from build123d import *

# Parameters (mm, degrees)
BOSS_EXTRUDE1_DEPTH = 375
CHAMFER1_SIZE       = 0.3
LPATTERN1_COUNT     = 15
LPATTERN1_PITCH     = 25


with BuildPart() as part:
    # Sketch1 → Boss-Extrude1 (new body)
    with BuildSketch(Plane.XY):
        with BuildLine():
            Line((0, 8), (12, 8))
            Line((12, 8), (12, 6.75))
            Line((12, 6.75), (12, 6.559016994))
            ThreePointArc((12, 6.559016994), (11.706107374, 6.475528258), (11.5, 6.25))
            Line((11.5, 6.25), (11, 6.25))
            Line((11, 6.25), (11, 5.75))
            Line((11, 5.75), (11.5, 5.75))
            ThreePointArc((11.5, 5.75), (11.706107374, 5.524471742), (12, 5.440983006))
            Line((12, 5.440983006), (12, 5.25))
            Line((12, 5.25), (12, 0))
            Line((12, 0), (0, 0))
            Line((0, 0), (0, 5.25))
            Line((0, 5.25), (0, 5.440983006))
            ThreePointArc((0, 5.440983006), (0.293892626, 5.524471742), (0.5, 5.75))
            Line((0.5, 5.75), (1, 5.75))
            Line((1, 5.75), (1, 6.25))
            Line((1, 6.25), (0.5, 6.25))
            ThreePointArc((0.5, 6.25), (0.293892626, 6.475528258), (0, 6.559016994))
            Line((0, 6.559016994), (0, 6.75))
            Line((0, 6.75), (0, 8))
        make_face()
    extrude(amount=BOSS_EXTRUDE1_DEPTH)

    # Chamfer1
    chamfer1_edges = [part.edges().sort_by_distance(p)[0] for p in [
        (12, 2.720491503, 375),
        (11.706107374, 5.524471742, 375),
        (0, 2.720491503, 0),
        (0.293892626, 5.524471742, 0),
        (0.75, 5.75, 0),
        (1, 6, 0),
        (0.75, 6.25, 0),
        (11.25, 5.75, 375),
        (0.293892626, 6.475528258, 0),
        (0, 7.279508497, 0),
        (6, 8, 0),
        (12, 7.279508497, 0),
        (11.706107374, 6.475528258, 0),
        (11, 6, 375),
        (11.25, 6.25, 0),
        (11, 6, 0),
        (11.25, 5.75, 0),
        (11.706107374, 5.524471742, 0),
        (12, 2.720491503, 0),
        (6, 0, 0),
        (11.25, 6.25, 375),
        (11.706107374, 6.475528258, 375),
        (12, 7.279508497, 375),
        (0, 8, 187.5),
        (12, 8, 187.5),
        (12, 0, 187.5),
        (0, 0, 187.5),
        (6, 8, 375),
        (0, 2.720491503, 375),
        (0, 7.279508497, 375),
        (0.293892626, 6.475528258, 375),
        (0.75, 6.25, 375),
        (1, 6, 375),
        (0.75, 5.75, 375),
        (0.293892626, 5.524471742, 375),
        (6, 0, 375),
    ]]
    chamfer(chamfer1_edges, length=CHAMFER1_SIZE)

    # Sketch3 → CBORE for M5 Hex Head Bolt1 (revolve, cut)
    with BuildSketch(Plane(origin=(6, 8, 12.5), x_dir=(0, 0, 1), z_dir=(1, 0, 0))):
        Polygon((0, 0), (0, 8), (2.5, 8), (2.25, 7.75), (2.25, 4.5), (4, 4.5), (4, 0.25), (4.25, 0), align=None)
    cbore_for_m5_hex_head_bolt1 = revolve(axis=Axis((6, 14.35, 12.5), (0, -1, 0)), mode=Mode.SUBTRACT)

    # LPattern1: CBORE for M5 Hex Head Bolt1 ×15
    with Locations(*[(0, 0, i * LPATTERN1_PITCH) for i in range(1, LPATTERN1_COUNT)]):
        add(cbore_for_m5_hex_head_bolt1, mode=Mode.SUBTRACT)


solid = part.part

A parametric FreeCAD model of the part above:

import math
import FreeCAD as App
import Part
import Sketcher

V = App.Vector
Q = App.Units.Quantity


def edges_at(feature, points):
    """Names of the edges that pass closest to the given points."""
    edges = feature.Shape.Edges
    near = lambda p: min(range(len(edges)), key=lambda i: edges[i].distToShape(Part.Vertex(*p))[0])
    return sorted({f"Edge{near(p) + 1}" for p in points})


def add_polygon(sketch, points):
    """Adds a closed chain of lines whose ends are joined by coincident constraints."""
    first, n = sketch.GeometryCount, len(points)
    for a, b in zip(points, points[1:] + points[:1]):
        sketch.addGeometry(Part.LineSegment(App.Vector(*a, 0), App.Vector(*b, 0)), False)
    for i in range(n):
        sketch.addConstraint(Sketcher.Constraint("Coincident", first + i, 2, first + (i + 1) % n, 1))

doc = App.newDocument("Part")
params = doc.addObject("Spreadsheet::Sheet", "Params")
for row, (alias, value) in enumerate([
    ("sketch1_width", "12 mm"),
    ("sketch1_width2", "0.5 mm"),
    ("pad1_length", "375 mm"),
    ("chamfer_size", "0.3 mm"),
    ("sketch2_width", "8 mm"),
    ("sketch2_height", "2.5 mm"),
    ("groove_angle", "360 deg"),
    ("linearpattern_pitch", "25 mm"),
], start=1):
    params.set(f"A{row}", alias)
    params.set(f"B{row}", "=" + value)
    params.setAlias(f"B{row}", alias)

body = doc.addObject("PartDesign::Body", "Body")

# Sketch on XY plane
sketch1 = body.newObject("Sketcher::SketchObject", "Sketch")
sketch1.AttachmentSupport = (doc.getObject("XY_Plane"), [""])
sketch1.MapMode = "FlatFace"
sketch1.addGeometry([
    Part.LineSegment(V(12, 8, 0), V(0, 8, 0)),  # 0
    Part.LineSegment(V(0, 8, 0), V(0, 6.6, 0)),  # 1
    Part.ArcOfCircle(Part.Circle(V(0, 6, 0), V(0, 0, 1), 0.6), math.radians(27), math.radians(90)),  # 2
    Part.LineSegment(V(0.5, 6.2, 0), V(1, 6.2, 0)),  # 3
    Part.LineSegment(V(1, 6.2, 0), V(1, 5.8, 0)),  # 4
    Part.LineSegment(V(1, 5.8, 0), V(0.5, 5.8, 0)),  # 5
    Part.ArcOfCircle(Part.Circle(V(0, 6, 0), V(0, 0, 1), 0.6), math.radians(-90), math.radians(-27)),  # 6
    Part.LineSegment(V(0, 5.4, 0), V(0, 0, 0)),  # 7
    Part.LineSegment(V(0, 0, 0), V(12, 0, 0)),  # 8
    Part.LineSegment(V(12, 0, 0), V(12, 5.4, 0)),  # 9
    Part.ArcOfCircle(Part.Circle(V(12, 6, 0), V(0, 0, 1), 0.6), math.radians(-153), math.radians(-90)),  # 10
    Part.LineSegment(V(11.5, 5.8, 0), V(11, 5.8, 0)),  # 11
    Part.LineSegment(V(11, 5.8, 0), V(11, 6.2, 0)),  # 12
    Part.LineSegment(V(11, 6.2, 0), V(11.5, 6.2, 0)),  # 13
    Part.ArcOfCircle(Part.Circle(V(12, 6, 0), V(0, 0, 1), 0.6), math.radians(90), math.radians(153)),  # 14
    Part.LineSegment(V(12, 6.6, 0), V(12, 8, 0)),  # 15
], False)
sketch1.addConstraint([
    Sketcher.Constraint("Coincident", 0, 2, 1, 1),
    Sketcher.Constraint("Coincident", 1, 2, 2, 2),
    Sketcher.Constraint("Coincident", 2, 1, 3, 1),
    Sketcher.Constraint("Coincident", 3, 2, 4, 1),
    Sketcher.Constraint("Coincident", 4, 2, 5, 1),
    Sketcher.Constraint("Coincident", 5, 2, 6, 2),
    Sketcher.Constraint("Coincident", 6, 1, 7, 1),
    Sketcher.Constraint("Coincident", 7, 2, 8, 1),
    Sketcher.Constraint("Coincident", 8, 2, 9, 1),
    Sketcher.Constraint("Coincident", 9, 2, 10, 2),
    Sketcher.Constraint("Coincident", 10, 1, 11, 1),
    Sketcher.Constraint("Coincident", 11, 2, 12, 1),
    Sketcher.Constraint("Coincident", 12, 2, 13, 1),
    Sketcher.Constraint("Coincident", 13, 2, 14, 2),
    Sketcher.Constraint("Coincident", 14, 1, 15, 1),
    Sketcher.Constraint("Coincident", 15, 2, 0, 1),
    Sketcher.Constraint("Horizontal", 0),
    Sketcher.Constraint("Vertical", 1),
    Sketcher.Constraint("Horizontal", 3),
    Sketcher.Constraint("Vertical", 4),
    Sketcher.Constraint("Horizontal", 5),
    Sketcher.Constraint("Vertical", 7),
    Sketcher.Constraint("Horizontal", 8),
    Sketcher.Constraint("Vertical", 9),
    Sketcher.Constraint("Horizontal", 11),
    Sketcher.Constraint("Vertical", 12),
    Sketcher.Constraint("Horizontal", 13),
    Sketcher.Constraint("Vertical", 15),
    Sketcher.Constraint("Coincident", 7, 2, -1, 1),
    Sketcher.Constraint("Coincident", 6, 3, 2, 3),
    Sketcher.Constraint("Coincident", 14, 3, 10, 3),
    Sketcher.Constraint("Equal", 2, 6),
    Sketcher.Constraint("Equal", 6, 10),
    Sketcher.Constraint("Equal", 10, 14),
    Sketcher.Constraint("PointOnObject", 2, 3, -2),
    Sketcher.Constraint("PointOnObject", 0, 2, -2),
    Sketcher.Constraint("Horizontal", 6, 3, 10, 3),
    Sketcher.Constraint("Horizontal", 5, 2, 10, 1),
    Sketcher.Constraint("Horizontal", 3, 2, 12, 2),
    Sketcher.Constraint("Vertical", 2, 1, 5, 2),
    Sketcher.Constraint("Vertical", 14, 3, 8, 2),
    Sketcher.Constraint("Vertical", 9, 2, 14, 1),
    Sketcher.Constraint("Equal", 5, 11),
    Sketcher.Constraint("Equal", 13, 4),
    Sketcher.Constraint("DistanceX", 0, 2, 0, 1, Q("12 mm")),
    Sketcher.Constraint("DistanceX", 3, 1, 3, 2, Q("0.5 mm")),
    Sketcher.Constraint("DistanceY", -1, 1, 2, 3, Q("6 mm")),
    Sketcher.Constraint("DistanceY", -1, 1, 0, 2, Q("8 mm")),
    Sketcher.Constraint("DistanceX", -1, 1, 3, 2, Q("1 mm")),
])
sketch1.setExpression("Constraints[44]", "Params.sketch1_width")
sketch1.setExpression("Constraints[45]", "Params.sketch1_width2")
pad1 = body.newObject("PartDesign::Pad", "Pad")
pad1.Profile = sketch1
pad1.setExpression("Length", "Params.pad1_length")
doc.recompute()

chamfer = body.newObject("PartDesign::Chamfer", "Chamfer")
chamfer.Base = (pad1, edges_at(pad1, [
    (12, 2.72, 375),
    (11.706, 5.524, 375),
    (0, 2.72, 0),
    (0.294, 5.524, 0),
    (0.75, 5.75, 0),
    (1, 6, 0),
    (0.75, 6.25, 0),
    (11.25, 5.75, 375),
    (0.294, 6.476, 0),
    (0, 7.28, 0),
    (6, 8, 0),
    (12, 7.28, 0),
    (11.706, 6.476, 0),
    (11, 6, 375),
    (11.25, 6.25, 0),
    (11, 6, 0),
    (11.25, 5.75, 0),
    (11.706, 5.524, 0),
    (12, 2.72, 0),
    (6, 0, 0),
    (11.25, 6.25, 375),
    (11.706, 6.476, 375),
    (12, 7.28, 375),
    (0, 8, 187.5),
    (12, 8, 187.5),
    (12, 0, 187.5),
    (0, 0, 187.5),
    (6, 8, 375),
    (0, 2.72, 375),
    (0, 7.28, 375),
    (0.294, 6.476, 375),
    (0.75, 6.25, 375),
    (1, 6, 375),
    (0.75, 5.75, 375),
    (0.294, 5.524, 375),
    (6, 0, 375),
]))
chamfer.setExpression("Size", "Params.chamfer_size")

# Sketch on YZ plane
sketch2 = body.newObject("Sketcher::SketchObject", "Sketch001")
sketch2.AttachmentSupport = (doc.getObject("YZ_Plane"), [""])
sketch2.MapMode = "FlatFace"
sketch2.AttachmentOffset = App.Placement(V(0, 0, 6), App.Rotation())
add_polygon(sketch2, [(0, 12.5), (8, 12.5), (8, 16.75), (7.75, 16.5), (3.5, 16.5), (3.5, 14.75), (0.25, 14.75), (0, 15)])  # lines 0-7
sketch2.addGeometry(Part.LineSegment(V(8, 12.5, 0), V(0, 12.5, 0)), True)  # axis
sketch2.addConstraint([
    Sketcher.Constraint("Horizontal", 0),
    Sketcher.Constraint("Vertical", 1),
    Sketcher.Constraint("Horizontal", 3),
    Sketcher.Constraint("Vertical", 4),
    Sketcher.Constraint("Horizontal", 5),
    Sketcher.Constraint("Vertical", 7),
    Sketcher.Constraint("Horizontal", 8),
    Sketcher.Constraint("Coincident", 8, 1, 0, 2),
    Sketcher.Constraint("PointOnObject", 6, 2, -2),
    Sketcher.Constraint("PointOnObject", 8, 2, -2),
    Sketcher.Constraint("Perpendicular", 2, 6),
    Sketcher.Constraint("Equal", 3, 1),
    Sketcher.Constraint("Equal", 2, 6),
    Sketcher.Constraint("DistanceX", 0, 1, 0, 2, Q("8 mm")),
    Sketcher.Constraint("Angle", 2, Q("-135 deg")),
    Sketcher.Constraint("DistanceY", 7, 2, 7, 1, Q("2.5 mm")),
    Sketcher.Constraint("DistanceY", -1, 1, 6, 2, Q("15 mm")),
    Sketcher.Constraint("DistanceY", 0, 2, 2, 2, Q("4 mm")),
    Sketcher.Constraint("DistanceY", 4, 2, 1, 2, Q("2 mm")),
])
sketch2.setExpression("Constraints[21]", "Params.sketch2_width")
sketch2.setExpression("Constraints[23]", "Params.sketch2_height")
groove = body.newObject("PartDesign::Groove", "Groove")
groove.Profile = sketch2
groove.ReferenceAxis = (sketch2, ["Axis0"])
groove.setExpression("Angle", "Params.groove_angle")
doc.recompute()

linearpattern = body.newObject("PartDesign::LinearPattern", "LinearPattern")
linearpattern.Originals = [groove]
linearpattern.Direction = (doc.getObject("Z_Axis"), [""])
linearpattern.Mode = "offset"
linearpattern.setExpression("Offset", "Params.linearpattern_pitch")
linearpattern.Occurrences = 15
body.Tip = linearpattern

doc.recompute()
